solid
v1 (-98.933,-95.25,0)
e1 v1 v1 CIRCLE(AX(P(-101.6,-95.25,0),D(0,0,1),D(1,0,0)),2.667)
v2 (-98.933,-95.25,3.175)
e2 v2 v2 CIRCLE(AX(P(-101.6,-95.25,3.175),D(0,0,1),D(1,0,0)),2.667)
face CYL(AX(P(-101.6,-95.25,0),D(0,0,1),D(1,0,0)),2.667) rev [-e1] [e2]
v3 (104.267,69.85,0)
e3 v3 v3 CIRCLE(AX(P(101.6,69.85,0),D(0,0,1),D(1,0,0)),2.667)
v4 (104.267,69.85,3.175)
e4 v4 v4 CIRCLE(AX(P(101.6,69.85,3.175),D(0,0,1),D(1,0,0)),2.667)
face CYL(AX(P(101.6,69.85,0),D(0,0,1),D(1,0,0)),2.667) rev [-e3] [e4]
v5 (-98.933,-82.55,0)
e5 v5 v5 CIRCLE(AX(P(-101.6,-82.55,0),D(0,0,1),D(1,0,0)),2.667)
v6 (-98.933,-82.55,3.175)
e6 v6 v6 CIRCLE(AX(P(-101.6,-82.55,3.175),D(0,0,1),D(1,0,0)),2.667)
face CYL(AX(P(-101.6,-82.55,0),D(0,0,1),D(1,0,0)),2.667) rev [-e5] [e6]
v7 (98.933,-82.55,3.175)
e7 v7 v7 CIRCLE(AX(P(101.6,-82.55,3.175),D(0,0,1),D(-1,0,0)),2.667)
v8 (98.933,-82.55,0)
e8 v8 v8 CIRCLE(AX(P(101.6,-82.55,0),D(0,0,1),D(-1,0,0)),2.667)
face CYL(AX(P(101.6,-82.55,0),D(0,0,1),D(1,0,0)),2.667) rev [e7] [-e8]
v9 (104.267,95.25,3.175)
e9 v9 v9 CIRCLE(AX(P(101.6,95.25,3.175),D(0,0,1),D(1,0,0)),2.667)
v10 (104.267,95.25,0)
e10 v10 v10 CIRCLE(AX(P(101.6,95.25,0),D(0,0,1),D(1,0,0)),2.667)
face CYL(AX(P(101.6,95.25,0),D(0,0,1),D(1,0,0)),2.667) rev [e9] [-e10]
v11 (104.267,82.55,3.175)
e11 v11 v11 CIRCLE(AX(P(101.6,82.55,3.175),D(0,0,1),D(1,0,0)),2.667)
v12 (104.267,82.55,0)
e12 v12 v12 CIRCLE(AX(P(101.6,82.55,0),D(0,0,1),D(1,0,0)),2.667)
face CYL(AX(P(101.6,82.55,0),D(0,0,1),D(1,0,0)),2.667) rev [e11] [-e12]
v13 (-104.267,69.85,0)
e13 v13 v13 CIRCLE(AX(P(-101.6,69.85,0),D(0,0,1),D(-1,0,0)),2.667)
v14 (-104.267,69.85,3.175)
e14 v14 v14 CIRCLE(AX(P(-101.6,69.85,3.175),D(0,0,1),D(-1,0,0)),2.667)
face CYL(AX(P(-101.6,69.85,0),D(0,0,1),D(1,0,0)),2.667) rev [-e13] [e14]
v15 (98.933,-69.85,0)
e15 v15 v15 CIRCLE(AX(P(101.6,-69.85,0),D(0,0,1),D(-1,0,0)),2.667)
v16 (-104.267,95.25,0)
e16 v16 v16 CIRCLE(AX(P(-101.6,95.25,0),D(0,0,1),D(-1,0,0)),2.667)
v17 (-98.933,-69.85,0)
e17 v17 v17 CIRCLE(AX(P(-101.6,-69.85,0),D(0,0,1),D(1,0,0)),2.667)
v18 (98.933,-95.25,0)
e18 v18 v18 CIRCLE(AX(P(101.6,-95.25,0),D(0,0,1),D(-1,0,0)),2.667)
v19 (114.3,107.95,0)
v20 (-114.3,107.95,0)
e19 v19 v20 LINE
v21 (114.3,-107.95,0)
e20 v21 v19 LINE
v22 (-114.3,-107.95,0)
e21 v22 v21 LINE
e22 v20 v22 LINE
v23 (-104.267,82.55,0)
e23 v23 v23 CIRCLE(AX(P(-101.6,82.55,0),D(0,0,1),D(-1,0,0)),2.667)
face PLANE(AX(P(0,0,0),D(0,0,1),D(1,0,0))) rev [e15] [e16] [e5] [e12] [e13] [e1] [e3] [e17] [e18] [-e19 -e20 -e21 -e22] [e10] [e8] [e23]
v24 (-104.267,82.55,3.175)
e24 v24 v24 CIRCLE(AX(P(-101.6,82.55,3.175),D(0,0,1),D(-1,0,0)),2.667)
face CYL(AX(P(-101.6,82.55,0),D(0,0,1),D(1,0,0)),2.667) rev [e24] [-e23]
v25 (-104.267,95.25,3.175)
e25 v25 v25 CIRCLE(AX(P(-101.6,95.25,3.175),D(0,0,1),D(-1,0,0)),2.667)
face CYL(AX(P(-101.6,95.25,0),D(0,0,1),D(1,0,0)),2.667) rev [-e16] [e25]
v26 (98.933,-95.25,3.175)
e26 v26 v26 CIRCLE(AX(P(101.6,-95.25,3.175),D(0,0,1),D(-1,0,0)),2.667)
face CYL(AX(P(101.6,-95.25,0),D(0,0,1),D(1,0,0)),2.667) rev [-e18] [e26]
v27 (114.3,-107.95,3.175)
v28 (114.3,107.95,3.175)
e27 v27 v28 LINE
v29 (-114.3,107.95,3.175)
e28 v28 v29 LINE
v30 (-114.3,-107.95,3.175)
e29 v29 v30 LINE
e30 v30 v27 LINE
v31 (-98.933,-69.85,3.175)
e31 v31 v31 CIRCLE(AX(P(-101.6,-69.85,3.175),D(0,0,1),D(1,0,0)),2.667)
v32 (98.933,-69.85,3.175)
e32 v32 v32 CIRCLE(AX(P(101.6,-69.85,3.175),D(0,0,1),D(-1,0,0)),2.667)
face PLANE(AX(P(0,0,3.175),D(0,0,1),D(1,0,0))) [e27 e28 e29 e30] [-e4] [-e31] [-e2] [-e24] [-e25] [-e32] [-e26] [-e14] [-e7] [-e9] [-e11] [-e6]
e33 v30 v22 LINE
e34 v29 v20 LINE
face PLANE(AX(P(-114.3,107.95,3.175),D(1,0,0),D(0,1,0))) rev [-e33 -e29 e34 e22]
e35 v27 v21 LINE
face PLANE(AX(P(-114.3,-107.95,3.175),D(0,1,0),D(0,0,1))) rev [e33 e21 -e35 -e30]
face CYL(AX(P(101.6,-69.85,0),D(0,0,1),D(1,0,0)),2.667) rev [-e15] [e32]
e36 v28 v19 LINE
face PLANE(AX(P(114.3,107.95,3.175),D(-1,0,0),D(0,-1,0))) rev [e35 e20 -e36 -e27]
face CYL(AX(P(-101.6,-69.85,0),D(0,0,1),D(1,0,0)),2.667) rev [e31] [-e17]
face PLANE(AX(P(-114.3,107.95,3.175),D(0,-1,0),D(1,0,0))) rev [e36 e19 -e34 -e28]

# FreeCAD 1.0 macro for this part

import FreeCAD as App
import Part
import Sketcher
from FreeCAD import Vector
Q = App.Units.Quantity


def add_polygon(sketch, points):
    """Adds a closed chain of lines whose ends are joined by coincident constraints."""
    first, n = sketch.GeometryCount, len(points)
    for a, b in zip(points, points[1:] + points[:1]):
        sketch.addGeometry(Part.LineSegment(App.Vector(*a, 0), App.Vector(*b, 0)), False)
    for i in range(n):
        sketch.addConstraint(Sketcher.Constraint("Coincident", first + i, 2, first + (i + 1) % n, 1))

doc = App.newDocument("Part")
body = doc.addObject("PartDesign::Body", "Body")

# Sketch on XY plane
sketch1 = body.newObject("Sketcher::SketchObject", "Sketch")
sketch1.AttachmentSupport = (doc.getObject("XY_Plane"), [""])
sketch1.MapMode = "FlatFace"
add_polygon(sketch1, [(-114, 108), (-114, -108), (114, -108), (114, 108)])  # lines 0-3
sketch1.addConstraint([
    Sketcher.Constraint("Vertical", 0),
    Sketcher.Constraint("Horizontal", 1),
    Sketcher.Constraint("Vertical", 2),
    Sketcher.Constraint("Horizontal", 3),
    Sketcher.Constraint("Symmetric", 0, 2, 2, 2, -1, 1),
    Sketcher.Constraint("DistanceX", 1, 1, 1, 2, Q("9 in")),
    Sketcher.Constraint("DistanceY", 0, 2, 0, 1, Q("8.5 in")),
])
pad1 = body.newObject("PartDesign::Pad", "Pad")
pad1.Profile = sketch1
pad1.Length = Q("0.125 in")

# Sketch on XY plane
sketch2 = body.newObject("Sketcher::SketchObject", "Sketch001")
sketch2.AttachmentSupport = (doc.getObject("XY_Plane"), [""])
sketch2.MapMode = "FlatFace"
sketch2.AttachmentOffset = App.Placement(Vector(0, 0, 0.125 * 25.4), App.Rotation())
sketch2.addGeometry([
    Part.Circle(Vector(-101.6, -69.8, 0), Vector(0, 0, 1), 2.7),  # 0
    Part.Circle(Vector(-101.6, -82.5, 0), Vector(0, 0, 1), 2.7),  # 1
    Part.Circle(Vector(-101.6, -95.2, 0), Vector(0, 0, 1), 2.7),  # 2
    Part.Circle(Vector(-101.6, 95.2, 0), Vector(0, 0, 1), 2.7),  # 3
    Part.Circle(Vector(-101.6, 82.5, 0), Vector(0, 0, 1), 2.7),  # 4
    Part.Circle(Vector(-101.6, 69.8, 0), Vector(0, 0, 1), 2.7),  # 5
    Part.Circle(Vector(101.6, 95.2, 0), Vector(0, 0, 1), 2.7),  # 6
    Part.Circle(Vector(101.6, 82.5, 0), Vector(0, 0, 1), 2.7),  # 7
    Part.Circle(Vector(101.6, 69.8, 0), Vector(0, 0, 1), 2.7),  # 8
    Part.Circle(Vector(101.6, -95.2, 0), Vector(0, 0, 1), 2.7),  # 9
    Part.Circle(Vector(101.6, -82.5, 0), Vector(0, 0, 1), 2.7),  # 10
    Part.Circle(Vector(101.6, -69.8, 0), Vector(0, 0, 1), 2.7),  # 11
], False)
sketch2.addConstraint([
    Sketcher.Constraint("Equal", 0, 1),
    Sketcher.Constraint("Equal", 1, 2),
    Sketcher.Constraint("Equal", 2, 3),
    Sketcher.Constraint("Equal", 3, 4),
    Sketcher.Constraint("Equal", 4, 5),
    Sketcher.Constraint("Equal", 5, 6),
    Sketcher.Constraint("Equal", 6, 7),
    Sketcher.Constraint("Equal", 7, 8),
    Sketcher.Constraint("Equal", 8, 9),
    Sketcher.Constraint("Equal", 9, 10),
    Sketcher.Constraint("Equal", 10, 11),
    Sketcher.Constraint("Symmetric", 2, 3, 6, 3, -1, 1),
    Sketcher.Constraint("Symmetric", 1, 3, 7, 3, -1, 1),
    Sketcher.Constraint("Symmetric", 0, 3, 8, 3, -1, 1),
    Sketcher.Constraint("Symmetric", 3, 3, 9, 3, -1, 1),
    Sketcher.Constraint("Symmetric", 4, 3, 10, 3, -1, 1),
    Sketcher.Constraint("Symmetric", 5, 3, 11, 3, -1, 1),
    Sketcher.Constraint("Symmetric", 3, 3, 6, 3, -2),
    Sketcher.Constraint("Symmetric", 4, 3, 7, 3, -2),
    Sketcher.Constraint("Symmetric", 5, 3, 8, 3, -2),
    Sketcher.Constraint("Vertical", 0, 3, 1, 3),
    Sketcher.Constraint("Vertical", 1, 3, 2, 3),
    Sketcher.Constraint("Diameter", 0, Q("0.21 in")),
    Sketcher.Constraint("DistanceX", 0, 3, -1, 1, Q("4 in")),
    Sketcher.Constraint("DistanceY", 2, 3, 0, 3, Q("1 in")),
    Sketcher.Constraint("DistanceY", 1, 3, 3, 3, Q("7 in")),
    Sketcher.Constraint("DistanceY", 1, 3, 0, 3, Q("0.5 in")),
])
pocket1 = body.newObject("PartDesign::Pocket", "Pocket")
pocket1.Profile = sketch2
pocket1.Length = Q("0.125 in")

doc.recompute()
